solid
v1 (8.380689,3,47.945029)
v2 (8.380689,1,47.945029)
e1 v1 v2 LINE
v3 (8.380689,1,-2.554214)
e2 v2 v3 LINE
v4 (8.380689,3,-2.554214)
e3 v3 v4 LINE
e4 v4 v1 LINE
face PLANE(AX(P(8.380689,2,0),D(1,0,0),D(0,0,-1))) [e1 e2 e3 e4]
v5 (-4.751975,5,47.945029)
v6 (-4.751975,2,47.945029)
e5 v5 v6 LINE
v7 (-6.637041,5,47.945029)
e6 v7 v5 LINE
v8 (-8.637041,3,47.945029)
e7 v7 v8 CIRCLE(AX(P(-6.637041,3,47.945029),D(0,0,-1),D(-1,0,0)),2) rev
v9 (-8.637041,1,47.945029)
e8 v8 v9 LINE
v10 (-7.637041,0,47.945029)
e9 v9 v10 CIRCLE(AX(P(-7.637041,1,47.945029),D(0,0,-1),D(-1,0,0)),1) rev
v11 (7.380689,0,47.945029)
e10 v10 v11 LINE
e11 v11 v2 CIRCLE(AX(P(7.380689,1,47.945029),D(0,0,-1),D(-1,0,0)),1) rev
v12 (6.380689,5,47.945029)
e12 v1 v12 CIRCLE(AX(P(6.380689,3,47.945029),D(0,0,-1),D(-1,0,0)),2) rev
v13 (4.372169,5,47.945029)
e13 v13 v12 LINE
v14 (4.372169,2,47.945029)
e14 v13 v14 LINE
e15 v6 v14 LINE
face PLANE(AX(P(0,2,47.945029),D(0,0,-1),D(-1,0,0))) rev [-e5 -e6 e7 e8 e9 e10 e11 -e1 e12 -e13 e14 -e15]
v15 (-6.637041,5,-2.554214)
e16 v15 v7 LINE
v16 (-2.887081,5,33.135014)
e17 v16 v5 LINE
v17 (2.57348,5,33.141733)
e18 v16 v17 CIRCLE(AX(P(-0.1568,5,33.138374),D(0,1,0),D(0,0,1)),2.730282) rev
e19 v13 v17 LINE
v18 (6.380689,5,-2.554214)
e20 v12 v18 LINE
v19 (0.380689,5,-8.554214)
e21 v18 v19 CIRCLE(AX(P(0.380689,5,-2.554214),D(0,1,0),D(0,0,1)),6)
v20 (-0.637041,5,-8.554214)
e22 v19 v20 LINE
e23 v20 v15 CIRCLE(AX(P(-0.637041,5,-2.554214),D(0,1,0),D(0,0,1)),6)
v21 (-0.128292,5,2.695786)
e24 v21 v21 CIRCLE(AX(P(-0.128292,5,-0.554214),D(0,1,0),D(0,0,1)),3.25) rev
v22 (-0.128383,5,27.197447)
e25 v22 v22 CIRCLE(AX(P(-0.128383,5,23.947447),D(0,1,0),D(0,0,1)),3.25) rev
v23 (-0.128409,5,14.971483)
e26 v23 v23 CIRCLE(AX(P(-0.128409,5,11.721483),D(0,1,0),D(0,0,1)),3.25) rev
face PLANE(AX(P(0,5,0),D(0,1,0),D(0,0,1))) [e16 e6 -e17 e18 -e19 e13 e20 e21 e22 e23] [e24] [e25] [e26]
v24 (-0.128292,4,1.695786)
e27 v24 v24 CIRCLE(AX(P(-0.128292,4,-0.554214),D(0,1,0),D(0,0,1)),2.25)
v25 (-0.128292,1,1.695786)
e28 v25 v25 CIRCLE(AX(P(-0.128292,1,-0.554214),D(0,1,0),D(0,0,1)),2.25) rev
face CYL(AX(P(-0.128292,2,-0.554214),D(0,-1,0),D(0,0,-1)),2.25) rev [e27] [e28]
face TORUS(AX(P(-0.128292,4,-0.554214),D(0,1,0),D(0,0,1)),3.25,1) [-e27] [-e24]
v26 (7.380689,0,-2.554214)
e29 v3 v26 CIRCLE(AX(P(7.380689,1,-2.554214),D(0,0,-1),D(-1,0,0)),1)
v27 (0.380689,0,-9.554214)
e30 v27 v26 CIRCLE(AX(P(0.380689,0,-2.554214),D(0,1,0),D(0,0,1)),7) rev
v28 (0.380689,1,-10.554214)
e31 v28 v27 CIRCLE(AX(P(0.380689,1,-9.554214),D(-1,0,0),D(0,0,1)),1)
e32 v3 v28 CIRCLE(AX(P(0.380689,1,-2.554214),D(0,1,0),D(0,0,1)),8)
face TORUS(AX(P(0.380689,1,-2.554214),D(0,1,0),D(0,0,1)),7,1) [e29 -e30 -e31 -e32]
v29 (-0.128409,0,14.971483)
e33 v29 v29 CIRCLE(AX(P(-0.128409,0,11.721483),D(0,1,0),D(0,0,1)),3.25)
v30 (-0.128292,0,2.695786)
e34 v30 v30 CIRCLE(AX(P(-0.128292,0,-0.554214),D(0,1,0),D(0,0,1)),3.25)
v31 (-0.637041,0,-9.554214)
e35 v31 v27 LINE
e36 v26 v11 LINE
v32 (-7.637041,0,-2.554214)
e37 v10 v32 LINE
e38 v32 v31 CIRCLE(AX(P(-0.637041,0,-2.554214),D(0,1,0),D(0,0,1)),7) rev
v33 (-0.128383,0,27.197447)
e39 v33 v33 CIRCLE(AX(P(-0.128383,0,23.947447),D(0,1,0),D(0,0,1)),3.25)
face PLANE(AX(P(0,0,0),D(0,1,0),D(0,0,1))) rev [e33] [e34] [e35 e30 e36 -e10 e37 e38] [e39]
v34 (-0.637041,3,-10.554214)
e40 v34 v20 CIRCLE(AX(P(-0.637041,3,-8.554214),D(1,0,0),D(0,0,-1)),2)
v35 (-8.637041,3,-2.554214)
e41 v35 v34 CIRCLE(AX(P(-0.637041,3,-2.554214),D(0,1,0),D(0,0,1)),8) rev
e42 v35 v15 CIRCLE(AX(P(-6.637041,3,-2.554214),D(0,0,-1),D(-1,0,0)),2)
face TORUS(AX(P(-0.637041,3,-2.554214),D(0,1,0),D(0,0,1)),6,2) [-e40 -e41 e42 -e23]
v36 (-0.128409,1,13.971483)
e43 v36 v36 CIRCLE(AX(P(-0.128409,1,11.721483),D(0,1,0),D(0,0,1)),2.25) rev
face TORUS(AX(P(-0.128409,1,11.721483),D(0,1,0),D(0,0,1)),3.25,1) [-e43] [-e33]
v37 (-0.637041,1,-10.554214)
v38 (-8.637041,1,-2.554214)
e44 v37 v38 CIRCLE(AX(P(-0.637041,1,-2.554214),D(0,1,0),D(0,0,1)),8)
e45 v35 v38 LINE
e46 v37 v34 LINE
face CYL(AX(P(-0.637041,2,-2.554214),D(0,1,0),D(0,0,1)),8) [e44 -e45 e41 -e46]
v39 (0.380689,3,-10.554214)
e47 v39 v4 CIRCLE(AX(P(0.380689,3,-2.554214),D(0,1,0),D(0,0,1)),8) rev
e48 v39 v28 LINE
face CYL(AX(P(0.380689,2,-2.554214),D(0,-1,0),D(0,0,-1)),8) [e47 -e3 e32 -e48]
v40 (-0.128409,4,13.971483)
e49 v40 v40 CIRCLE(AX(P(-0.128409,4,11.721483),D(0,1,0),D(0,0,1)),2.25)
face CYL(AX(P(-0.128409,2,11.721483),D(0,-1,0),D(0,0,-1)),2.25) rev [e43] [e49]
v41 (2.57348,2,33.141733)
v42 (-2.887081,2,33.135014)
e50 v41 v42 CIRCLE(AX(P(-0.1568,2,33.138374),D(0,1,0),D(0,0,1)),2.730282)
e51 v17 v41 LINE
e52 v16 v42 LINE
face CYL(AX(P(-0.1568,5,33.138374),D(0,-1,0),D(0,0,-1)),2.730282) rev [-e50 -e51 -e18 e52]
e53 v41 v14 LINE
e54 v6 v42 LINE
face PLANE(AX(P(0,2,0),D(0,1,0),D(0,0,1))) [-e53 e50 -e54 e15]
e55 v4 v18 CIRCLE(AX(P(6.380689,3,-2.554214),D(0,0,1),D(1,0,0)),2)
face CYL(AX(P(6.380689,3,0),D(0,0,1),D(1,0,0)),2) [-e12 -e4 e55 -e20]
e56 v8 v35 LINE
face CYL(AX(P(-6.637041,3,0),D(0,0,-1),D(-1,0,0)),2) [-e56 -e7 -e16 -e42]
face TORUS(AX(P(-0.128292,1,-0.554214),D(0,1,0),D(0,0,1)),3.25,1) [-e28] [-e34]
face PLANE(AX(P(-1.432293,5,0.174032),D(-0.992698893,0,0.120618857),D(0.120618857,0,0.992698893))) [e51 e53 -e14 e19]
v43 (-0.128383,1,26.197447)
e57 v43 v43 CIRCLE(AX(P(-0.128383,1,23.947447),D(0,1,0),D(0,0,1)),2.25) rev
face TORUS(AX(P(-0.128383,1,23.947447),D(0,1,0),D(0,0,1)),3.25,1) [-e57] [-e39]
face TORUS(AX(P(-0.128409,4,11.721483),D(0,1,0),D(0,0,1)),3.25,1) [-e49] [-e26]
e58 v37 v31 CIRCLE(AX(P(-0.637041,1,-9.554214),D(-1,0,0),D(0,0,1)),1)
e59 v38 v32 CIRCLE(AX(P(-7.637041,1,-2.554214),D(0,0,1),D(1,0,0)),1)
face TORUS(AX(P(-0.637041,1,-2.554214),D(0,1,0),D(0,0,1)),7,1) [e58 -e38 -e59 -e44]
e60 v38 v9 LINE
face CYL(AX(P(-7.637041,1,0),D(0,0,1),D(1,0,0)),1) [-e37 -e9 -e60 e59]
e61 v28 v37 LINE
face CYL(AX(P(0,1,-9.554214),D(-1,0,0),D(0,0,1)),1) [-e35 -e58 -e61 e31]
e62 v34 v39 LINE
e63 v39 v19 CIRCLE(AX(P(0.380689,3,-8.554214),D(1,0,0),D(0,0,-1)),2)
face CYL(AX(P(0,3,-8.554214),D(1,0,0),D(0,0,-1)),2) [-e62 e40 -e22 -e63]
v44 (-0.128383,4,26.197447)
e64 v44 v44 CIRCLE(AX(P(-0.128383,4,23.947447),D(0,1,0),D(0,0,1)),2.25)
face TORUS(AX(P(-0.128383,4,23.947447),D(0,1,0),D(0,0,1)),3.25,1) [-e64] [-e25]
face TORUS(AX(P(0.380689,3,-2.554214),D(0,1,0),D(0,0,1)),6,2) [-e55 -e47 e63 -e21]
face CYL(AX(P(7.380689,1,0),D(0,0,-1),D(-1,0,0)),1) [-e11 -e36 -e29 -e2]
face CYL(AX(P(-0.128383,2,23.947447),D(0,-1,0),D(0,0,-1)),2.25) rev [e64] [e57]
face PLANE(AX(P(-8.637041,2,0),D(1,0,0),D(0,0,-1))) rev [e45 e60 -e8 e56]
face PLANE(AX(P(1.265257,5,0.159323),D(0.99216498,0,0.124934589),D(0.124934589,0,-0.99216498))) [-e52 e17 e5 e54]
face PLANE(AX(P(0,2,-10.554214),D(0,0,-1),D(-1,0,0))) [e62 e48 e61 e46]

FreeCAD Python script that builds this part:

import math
import FreeCAD as App
import Part
import Sketcher
from FreeCAD import Vector


def edges_at(feature, points):
    """Names of the edges that pass closest to the given points."""
    edges = feature.Shape.Edges
    near = lambda p: min(range(len(edges)), key=lambda i: edges[i].distToShape(Part.Vertex(*p))[0])
    return sorted({f"Edge{near(p) + 1}" for p in points})


def add_polygon(sketch, points):
    """Adds a closed chain of lines whose ends are joined by coincident constraints."""
    first, n = sketch.GeometryCount, len(points)
    for a, b in zip(points, points[1:] + points[:1]):
        sketch.addGeometry(Part.LineSegment(App.Vector(*a, 0), App.Vector(*b, 0)), False)
    for i in range(n):
        sketch.addConstraint(Sketcher.Constraint("Coincident", first + i, 2, first + (i + 1) % n, 1))

doc = App.newDocument("Part")
body = doc.addObject("PartDesign::Body", "Body")

# Sketch on XZ plane
sketch1 = body.newObject("Sketcher::SketchObject", "Sketch")
sketch1.AttachmentSupport = (doc.getObject("XZ_Plane"), [""])
sketch1.MapMode = "FlatFace"
add_polygon(sketch1, [(-8.637041, 47.945029), (8.380689, 47.945029), (8.380689, -10.554214), (-8.637041, -10.554214)])  # lines 0-3
sketch1.addGeometry(Part.Circle(Vector(-0.128383, 23.947447, 0), Vector(0, 0, 1), 2.25), False)  # 4
sketch1.addGeometry(Part.Circle(Vector(-0.128409, 11.721483, 0), Vector(0, 0, 1), 2.25), False)  # 5
sketch1.addGeometry(Part.Circle(Vector(-0.128292, -0.554214, 0), Vector(0, 0, 1), 2.25), False)  # 6
sketch1.addConstraint([
    Sketcher.Constraint("Horizontal", 0),
    Sketcher.Constraint("Vertical", 1),
    Sketcher.Constraint("Horizontal", 2),
    Sketcher.Constraint("Vertical", 3),
    Sketcher.Constraint("Equal", 4, 5),
    Sketcher.Constraint("Equal", 5, 6),
    Sketcher.Constraint("Diameter", 4, 4.5),
    Sketcher.Constraint("DistanceY", 1, 2, 6, 3, 10.0),
    Sketcher.Constraint("DistanceX", 0, 1, 0, 2, 17.01773),
    Sketcher.Constraint("DistanceX", 5, 3, 0, 2, 8.509098),
    Sketcher.Constraint("DistanceY", 1, 2, 1, 1, 58.499244),
    Sketcher.Constraint("DistanceX", 5, 3, -1, 1, 0.128409),
    Sketcher.Constraint("DistanceY", -1, 1, 0, 2, 47.945029),
    Sketcher.Constraint("DistanceY", 6, 3, 4, 3, 24.501661),
    Sketcher.Constraint("DistanceX", 6, 3, 0, 2, 8.508982),
    Sketcher.Constraint("DistanceX", 4, 3, -1, 1, 0.128383),
    Sketcher.Constraint("DistanceY", -1, 1, 5, 3, 11.721483),
])
pad1 = body.newObject("PartDesign::Pad", "Pad")
pad1.Profile = sketch1
pad1.Length = 2
pad1.Reversed = True

# Sketch on XZ plane
sketch2 = body.newObject("Sketcher::SketchObject", "Sketch001")
sketch2.AttachmentSupport = (doc.getObject("XZ_Plane"), [""])
sketch2.MapMode = "FlatFace"
sketch2.addGeometry([
    Part.LineSegment(Vector(-4.751975, 47.945029, 0), Vector(-2.887081, 33.135014, 0)),  # 0
    Part.ArcOfCircle(Part.Circle(Vector(-0.1568, 33.138374, 0), Vector(0, 0, 1), 2.730282), math.radians(-179.929493), math.radians(0.070507)),  # 1
    Part.LineSegment(Vector(2.57348, 33.141733, 0), Vector(4.372169, 47.945029, 0)),  # 2
    Part.LineSegment(Vector(4.372169, 47.945029, 0), Vector(8.380689, 47.945029, 0)),  # 3
    Part.LineSegment(Vector(8.380689, 47.945029, 0), Vector(8.380689, -10.554214, 0)),  # 4
    Part.LineSegment(Vector(8.380689, -10.554214, 0), Vector(-8.637041, -10.554214, 0)),  # 5
    Part.LineSegment(Vector(-8.637041, -10.554214, 0), Vector(-8.637041, 47.945029, 0)),  # 6
    Part.LineSegment(Vector(-8.637041, 47.945029, 0), Vector(-4.751975, 47.945029, 0)),  # 7
    Part.Circle(Vector(-0.128383, 23.947447, 0), Vector(0, 0, 1), 2.25),  # 8
    Part.Circle(Vector(-0.128409, 11.721483, 0), Vector(0, 0, 1), 2.25),  # 9
    Part.Circle(Vector(-0.128292, -0.554214, 0), Vector(0, 0, 1), 2.25),  # 10
], False)
sketch2.addConstraint([
    Sketcher.Constraint("Coincident", 0, 2, 1, 1),
    Sketcher.Constraint("Coincident", 1, 2, 2, 1),
    Sketcher.Constraint("Coincident", 2, 2, 3, 1),
    Sketcher.Constraint("Coincident", 3, 2, 4, 1),
    Sketcher.Constraint("Coincident", 4, 2, 5, 1),
    Sketcher.Constraint("Coincident", 5, 2, 6, 1),
    Sketcher.Constraint("Coincident", 6, 2, 7, 1),
    Sketcher.Constraint("Coincident", 7, 2, 0, 1),
    Sketcher.Constraint("Horizontal", 3),
    Sketcher.Constraint("Vertical", 4),
    Sketcher.Constraint("Horizontal", 5),
    Sketcher.Constraint("Vertical", 6),
    Sketcher.Constraint("Horizontal", 7),
    Sketcher.Constraint("Equal", 8, 9),
    Sketcher.Constraint("Equal", 9, 10),
    Sketcher.Constraint("Horizontal", 3, 2, 6, 2),
    Sketcher.Constraint("Diameter", 8, 4.5),
    Sketcher.Constraint("DistanceY", 4, 2, 10, 3, 10.0),
    Sketcher.Constraint("Radius", 1, 2.730282),
    Sketcher.Constraint("DistanceX", 3, 1, 3, 2, 4.008521),
    Sketcher.Constraint("DistanceX", 5, 2, 5, 1, 17.01773),
    Sketcher.Constraint("DistanceX", 1, 3, -1, 1, 0.1568),
    Sketcher.Constraint("DistanceX", 9, 3, 4, 2, 8.509098),
    Sketcher.Constraint("Distance", 0, 14.926969),
    Sketcher.Constraint("Distance", 2, 14.912171),
    Sketcher.Constraint("DistanceX", 7, 1, 7, 2, 3.885065),
    Sketcher.Constraint("DistanceY", 4, 2, 4, 1, 58.499244),
    Sketcher.Constraint("DistanceX", 9, 3, -1, 1, 0.128409),
    Sketcher.Constraint("DistanceY", -1, 1, 2, 2, 47.945029),
    Sketcher.Constraint("DistanceY", 9, 3, 1, 3, 21.41689),
    Sketcher.Constraint("DistanceY", 10, 3, 8, 3, 24.501661),
    Sketcher.Constraint("DistanceX", 1, 3, 10, 3, 0.028508),
    Sketcher.Constraint("DistanceY", 0, 2, 1, 3, 0.00336),
    Sketcher.Constraint("DistanceX", 8, 3, 2, 2, 4.500552),
])
pad2 = body.newObject("PartDesign::Pad", "Pad001")
pad2.Profile = sketch2
pad2.Length = 5
pad2.Reversed = True
doc.recompute()

fillet = body.newObject("PartDesign::Fillet", "Fillet")
fillet.Base = (pad2, edges_at(pad2, [(-8.637, 2.5, -10.554), (8.381, 2.5, -10.554)]))
fillet.Radius = 8
doc.recompute()

fillet2 = body.newObject("PartDesign::Fillet", "Fillet001")
fillet2.Base = (fillet, edges_at(fillet, [
    (-8.637, 5, 22.695),
    (-0.128, 5, -10.554),
    (8.381, 5, 22.695),
    (6.038, 5, -8.211),
    (-6.294, 5, -8.211),
]))
fillet2.Radius = 2
doc.recompute()

fillet3 = body.newObject("PartDesign::Fillet", "Fillet002")
fillet3.Base = (fillet2, edges_at(fillet2, [
    (-0.128, 5, -2.804),
    (-0.128, 5, 9.471),
    (-0.128, 5, 21.697),
    (-0.128, 0, -2.804),
    (-0.128, 0, 9.471),
    (-0.128, 0, 21.697),
]))
fillet3.Radius = 1
doc.recompute()

fillet4 = body.newObject("PartDesign::Fillet", "Fillet003")
fillet4.Base = (fillet3, edges_at(fillet3, [
    (-8.637, 0, 22.695),
    (8.381, 0, 22.695),
    (-0.128, 0, -10.554),
    (6.038, 0, -8.211),
    (-6.294, 0, -8.211),
]))
fillet4.Radius = 1

doc.recompute()
